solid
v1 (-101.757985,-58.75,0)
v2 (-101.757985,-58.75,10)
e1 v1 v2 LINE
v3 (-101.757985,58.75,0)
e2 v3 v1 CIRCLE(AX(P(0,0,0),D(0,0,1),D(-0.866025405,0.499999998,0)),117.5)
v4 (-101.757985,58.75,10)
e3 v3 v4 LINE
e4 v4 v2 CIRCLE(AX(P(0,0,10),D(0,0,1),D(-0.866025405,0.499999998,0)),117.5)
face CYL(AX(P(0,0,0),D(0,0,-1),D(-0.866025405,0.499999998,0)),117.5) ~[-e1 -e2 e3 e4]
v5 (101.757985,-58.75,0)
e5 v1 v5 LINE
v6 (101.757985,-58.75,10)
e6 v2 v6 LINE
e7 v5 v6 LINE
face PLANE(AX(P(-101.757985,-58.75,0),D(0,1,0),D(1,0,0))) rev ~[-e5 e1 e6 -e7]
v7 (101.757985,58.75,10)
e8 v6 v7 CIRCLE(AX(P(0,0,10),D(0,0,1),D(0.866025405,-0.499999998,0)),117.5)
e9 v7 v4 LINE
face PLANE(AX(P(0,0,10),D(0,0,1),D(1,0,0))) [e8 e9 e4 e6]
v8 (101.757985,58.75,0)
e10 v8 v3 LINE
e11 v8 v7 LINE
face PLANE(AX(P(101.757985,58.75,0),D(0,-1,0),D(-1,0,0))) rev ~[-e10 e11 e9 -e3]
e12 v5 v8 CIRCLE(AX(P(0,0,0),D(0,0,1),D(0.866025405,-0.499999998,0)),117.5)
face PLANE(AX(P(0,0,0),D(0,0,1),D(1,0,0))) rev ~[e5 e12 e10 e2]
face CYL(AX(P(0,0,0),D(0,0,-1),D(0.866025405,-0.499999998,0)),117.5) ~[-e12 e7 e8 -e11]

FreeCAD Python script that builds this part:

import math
import FreeCAD as App
import Part
import Sketcher

doc = App.newDocument("Part")
params = doc.addObject("Spreadsheet::Sheet", "Params")
for row, (alias, value) in enumerate([
    ("sketch1_radius", "117.5 mm"),
    ("pad1_length", "10 mm"),
], start=1):
    params.set(f"A{row}", alias)
    params.set(f"B{row}", "=" + value)
    params.setAlias(f"B{row}", alias)

body = doc.addObject("PartDesign::Body", "Body")

# Sketch on XY plane
sketch1 = doc.addObject("Sketcher::SketchObject", "Sketch")
body.addObject(sketch1)
sketch1.AttachmentSupport = (doc.XY_Plane, [""])
sketch1.MapMode = "FlatFace"
sketch1.addGeometry([
    Part.ArcOfCircle(Part.Circle(App.Vector(0, 0, 0), App.Vector(0, 0, 1), 118), math.radians(150), math.radians(210)),
    Part.LineSegment(App.Vector(-102, -59, 0), App.Vector(102, -59, 0)),
    Part.ArcOfCircle(Part.Circle(App.Vector(0, 0, 0), App.Vector(0, 0, 1), 118), math.radians(-30), math.radians(30)),
    Part.LineSegment(App.Vector(102, 59, 0), App.Vector(-102, 59, 0)),
], False)
sketch1.addConstraint([
    Sketcher.Constraint("Coincident", 0, 2, 1, 1),
    Sketcher.Constraint("Coincident", 1, 2, 2, 1),
    Sketcher.Constraint("Coincident", 2, 2, 3, 1),
    Sketcher.Constraint("Coincident", 3, 2, 0, 1),
    Sketcher.Constraint("Horizontal", 1),
    Sketcher.Constraint("Horizontal", 3),
    Sketcher.Constraint("Coincident", 0, 3, -1, 1),
    Sketcher.Constraint("Coincident", 2, 3, -1, 1),
    Sketcher.Constraint("Equal", 0, 2),
    Sketcher.Constraint("Vertical", 1, 2, 2, 2),
    Sketcher.Constraint("Radius", 0, 117.5),
    Sketcher.Constraint("DistanceY", 1, 2, 2, 2, 117.5),
])
sketch1.setExpression("Constraints[10]", "Params.sketch1_radius")
pad1 = doc.addObject("PartDesign::Pad", "Pad")
body.addObject(pad1)
pad1.Profile = sketch1
pad1.setExpression("Length", "Params.pad1_length")

doc.recompute()
